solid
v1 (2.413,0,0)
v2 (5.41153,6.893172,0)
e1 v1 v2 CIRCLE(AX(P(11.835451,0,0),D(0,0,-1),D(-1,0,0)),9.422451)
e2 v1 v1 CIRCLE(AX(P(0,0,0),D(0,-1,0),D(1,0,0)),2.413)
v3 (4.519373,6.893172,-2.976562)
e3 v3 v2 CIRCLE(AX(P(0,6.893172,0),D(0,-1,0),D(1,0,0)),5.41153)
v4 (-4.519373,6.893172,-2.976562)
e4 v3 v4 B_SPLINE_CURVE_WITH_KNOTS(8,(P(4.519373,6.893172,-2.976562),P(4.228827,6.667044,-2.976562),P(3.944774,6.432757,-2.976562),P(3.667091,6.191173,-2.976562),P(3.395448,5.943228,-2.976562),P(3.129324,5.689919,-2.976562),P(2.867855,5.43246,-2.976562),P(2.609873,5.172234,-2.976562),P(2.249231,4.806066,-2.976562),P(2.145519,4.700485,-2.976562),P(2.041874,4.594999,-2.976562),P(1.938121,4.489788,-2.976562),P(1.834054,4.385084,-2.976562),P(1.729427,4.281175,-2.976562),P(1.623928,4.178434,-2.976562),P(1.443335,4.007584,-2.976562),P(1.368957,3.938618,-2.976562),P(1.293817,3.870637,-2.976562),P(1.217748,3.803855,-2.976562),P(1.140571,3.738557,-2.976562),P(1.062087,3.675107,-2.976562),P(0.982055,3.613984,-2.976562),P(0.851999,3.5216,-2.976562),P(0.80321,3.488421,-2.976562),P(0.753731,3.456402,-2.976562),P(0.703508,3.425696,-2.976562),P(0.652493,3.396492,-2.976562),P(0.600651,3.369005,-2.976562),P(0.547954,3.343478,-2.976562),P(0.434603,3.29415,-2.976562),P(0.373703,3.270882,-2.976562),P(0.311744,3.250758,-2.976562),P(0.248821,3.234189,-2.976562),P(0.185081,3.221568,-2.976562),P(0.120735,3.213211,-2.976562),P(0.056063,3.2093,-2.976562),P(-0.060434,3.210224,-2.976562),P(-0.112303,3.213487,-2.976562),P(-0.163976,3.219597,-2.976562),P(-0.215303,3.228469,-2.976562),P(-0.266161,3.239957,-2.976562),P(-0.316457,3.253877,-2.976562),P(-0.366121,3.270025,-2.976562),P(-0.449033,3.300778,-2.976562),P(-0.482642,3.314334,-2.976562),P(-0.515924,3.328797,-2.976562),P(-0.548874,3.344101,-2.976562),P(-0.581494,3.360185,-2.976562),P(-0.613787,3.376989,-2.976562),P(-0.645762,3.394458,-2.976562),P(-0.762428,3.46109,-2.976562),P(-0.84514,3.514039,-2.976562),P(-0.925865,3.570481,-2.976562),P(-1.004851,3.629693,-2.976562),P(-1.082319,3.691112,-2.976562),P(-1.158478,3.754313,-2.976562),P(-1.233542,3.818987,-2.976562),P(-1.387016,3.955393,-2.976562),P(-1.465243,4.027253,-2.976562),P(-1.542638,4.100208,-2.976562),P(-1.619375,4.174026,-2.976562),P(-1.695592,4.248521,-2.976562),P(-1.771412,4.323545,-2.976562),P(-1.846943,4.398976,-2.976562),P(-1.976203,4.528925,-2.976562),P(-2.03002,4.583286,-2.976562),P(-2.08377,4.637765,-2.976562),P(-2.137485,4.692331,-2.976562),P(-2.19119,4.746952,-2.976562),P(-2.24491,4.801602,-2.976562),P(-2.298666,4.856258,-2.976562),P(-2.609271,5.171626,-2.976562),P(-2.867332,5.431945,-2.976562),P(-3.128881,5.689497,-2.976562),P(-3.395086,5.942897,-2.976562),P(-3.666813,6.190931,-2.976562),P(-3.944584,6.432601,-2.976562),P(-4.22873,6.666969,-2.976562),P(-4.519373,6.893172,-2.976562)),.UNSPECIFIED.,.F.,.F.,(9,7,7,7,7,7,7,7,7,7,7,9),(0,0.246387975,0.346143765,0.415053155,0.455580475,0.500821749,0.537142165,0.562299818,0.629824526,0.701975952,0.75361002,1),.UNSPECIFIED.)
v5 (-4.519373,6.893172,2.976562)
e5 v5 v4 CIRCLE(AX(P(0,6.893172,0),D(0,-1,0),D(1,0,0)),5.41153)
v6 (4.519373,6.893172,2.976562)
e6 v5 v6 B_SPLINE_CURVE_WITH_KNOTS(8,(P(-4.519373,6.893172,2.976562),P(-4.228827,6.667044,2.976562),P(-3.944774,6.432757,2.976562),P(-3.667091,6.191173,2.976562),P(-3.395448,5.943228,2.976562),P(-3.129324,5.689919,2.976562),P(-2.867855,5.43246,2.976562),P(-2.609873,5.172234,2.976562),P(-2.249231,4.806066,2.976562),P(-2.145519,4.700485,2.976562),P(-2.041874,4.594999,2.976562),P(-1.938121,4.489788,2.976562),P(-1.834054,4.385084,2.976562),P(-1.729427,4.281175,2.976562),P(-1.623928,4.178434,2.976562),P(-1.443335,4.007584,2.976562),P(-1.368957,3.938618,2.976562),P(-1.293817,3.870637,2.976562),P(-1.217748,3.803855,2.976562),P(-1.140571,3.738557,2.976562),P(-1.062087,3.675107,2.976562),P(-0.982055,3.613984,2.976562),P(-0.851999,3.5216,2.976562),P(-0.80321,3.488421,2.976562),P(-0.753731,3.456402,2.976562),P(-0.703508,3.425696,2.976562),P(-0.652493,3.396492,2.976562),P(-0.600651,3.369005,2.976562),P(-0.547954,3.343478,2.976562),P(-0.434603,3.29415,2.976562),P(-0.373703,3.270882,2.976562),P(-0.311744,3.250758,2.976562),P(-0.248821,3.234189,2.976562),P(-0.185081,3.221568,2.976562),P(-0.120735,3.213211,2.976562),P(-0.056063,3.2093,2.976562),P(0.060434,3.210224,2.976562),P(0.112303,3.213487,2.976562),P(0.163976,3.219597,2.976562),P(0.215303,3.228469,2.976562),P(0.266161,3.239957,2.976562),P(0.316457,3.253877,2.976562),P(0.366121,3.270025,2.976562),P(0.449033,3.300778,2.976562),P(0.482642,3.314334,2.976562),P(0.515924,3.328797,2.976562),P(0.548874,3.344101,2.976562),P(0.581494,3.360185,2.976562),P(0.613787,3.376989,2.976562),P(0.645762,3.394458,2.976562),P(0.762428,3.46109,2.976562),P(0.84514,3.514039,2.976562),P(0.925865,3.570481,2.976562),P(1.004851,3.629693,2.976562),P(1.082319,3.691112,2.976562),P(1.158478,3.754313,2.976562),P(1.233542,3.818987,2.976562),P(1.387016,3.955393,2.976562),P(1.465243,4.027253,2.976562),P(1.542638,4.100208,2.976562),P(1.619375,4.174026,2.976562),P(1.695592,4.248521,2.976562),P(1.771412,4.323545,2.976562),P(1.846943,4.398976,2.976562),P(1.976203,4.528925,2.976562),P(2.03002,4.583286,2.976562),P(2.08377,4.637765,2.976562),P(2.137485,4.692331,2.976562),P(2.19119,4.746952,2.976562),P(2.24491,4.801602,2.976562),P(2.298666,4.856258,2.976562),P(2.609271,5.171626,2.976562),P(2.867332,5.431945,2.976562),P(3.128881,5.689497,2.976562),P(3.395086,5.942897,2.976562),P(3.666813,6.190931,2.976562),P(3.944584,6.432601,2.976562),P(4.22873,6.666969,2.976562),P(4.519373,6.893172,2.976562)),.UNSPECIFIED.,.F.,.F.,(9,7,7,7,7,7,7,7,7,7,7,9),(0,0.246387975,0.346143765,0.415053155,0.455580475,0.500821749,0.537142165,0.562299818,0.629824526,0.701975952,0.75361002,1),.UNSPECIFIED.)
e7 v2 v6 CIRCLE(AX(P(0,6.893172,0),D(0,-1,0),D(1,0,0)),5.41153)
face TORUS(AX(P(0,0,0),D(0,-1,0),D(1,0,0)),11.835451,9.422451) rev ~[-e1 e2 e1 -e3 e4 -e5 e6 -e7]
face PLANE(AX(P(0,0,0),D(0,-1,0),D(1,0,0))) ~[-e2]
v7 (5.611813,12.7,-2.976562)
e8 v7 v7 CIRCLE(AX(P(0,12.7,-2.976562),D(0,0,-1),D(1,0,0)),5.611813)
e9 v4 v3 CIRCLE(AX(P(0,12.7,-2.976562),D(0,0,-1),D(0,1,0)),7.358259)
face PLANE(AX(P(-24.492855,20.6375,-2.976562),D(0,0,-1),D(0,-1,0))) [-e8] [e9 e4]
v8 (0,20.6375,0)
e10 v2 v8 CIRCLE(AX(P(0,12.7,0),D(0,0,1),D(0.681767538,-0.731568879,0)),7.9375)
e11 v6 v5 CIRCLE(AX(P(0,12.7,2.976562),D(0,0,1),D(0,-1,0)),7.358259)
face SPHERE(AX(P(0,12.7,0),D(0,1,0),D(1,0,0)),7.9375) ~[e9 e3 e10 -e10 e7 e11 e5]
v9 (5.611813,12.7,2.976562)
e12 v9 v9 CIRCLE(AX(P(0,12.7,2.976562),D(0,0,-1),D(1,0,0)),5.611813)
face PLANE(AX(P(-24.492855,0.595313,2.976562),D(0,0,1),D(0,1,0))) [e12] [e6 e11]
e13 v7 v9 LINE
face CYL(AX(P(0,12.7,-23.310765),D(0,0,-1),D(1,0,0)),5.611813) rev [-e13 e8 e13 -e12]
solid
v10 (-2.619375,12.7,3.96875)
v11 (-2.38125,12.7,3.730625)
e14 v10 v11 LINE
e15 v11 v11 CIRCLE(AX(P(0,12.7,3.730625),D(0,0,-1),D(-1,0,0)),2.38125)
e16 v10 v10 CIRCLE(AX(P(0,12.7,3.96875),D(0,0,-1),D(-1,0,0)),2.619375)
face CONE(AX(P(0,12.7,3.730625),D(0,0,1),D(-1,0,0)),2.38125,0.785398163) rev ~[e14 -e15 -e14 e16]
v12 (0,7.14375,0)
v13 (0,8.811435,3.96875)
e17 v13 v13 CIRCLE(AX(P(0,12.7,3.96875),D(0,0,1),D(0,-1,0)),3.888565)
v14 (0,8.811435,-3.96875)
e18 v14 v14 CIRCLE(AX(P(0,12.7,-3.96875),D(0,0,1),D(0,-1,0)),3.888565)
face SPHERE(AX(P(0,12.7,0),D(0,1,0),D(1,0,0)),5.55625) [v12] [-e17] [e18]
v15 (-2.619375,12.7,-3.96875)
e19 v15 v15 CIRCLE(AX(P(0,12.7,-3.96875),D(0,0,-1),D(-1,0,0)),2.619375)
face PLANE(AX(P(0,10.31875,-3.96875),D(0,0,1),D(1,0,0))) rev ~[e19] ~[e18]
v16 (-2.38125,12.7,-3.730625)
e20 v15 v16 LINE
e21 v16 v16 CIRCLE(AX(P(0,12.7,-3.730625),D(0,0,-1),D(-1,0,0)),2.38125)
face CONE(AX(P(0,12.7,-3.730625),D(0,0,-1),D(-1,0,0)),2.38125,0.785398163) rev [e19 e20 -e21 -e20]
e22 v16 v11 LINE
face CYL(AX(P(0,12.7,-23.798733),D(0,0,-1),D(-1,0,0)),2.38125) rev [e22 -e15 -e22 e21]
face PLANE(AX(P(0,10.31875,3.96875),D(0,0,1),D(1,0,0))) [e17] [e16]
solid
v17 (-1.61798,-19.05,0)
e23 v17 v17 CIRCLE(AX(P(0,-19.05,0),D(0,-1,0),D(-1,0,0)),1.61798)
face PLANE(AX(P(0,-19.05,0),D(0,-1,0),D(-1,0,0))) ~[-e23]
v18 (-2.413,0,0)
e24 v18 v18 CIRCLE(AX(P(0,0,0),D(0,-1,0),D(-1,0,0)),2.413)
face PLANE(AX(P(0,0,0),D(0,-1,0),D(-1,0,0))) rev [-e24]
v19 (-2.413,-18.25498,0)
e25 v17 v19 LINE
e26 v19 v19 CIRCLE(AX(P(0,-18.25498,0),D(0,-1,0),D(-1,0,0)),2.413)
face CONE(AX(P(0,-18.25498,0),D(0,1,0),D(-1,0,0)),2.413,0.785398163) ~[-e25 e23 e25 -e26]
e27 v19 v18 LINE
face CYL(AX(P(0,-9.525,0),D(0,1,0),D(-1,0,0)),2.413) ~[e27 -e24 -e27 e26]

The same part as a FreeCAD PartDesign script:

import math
import FreeCAD as App
import Part
import Sketcher
from FreeCAD import Vector
Q = App.Units.Quantity


def edges_at(feature, points):
    """Names of the edges that pass closest to the given points."""
    edges = feature.Shape.Edges
    near = lambda p: min(range(len(edges)), key=lambda i: edges[i].distToShape(Part.Vertex(*p))[0])
    return sorted({f"Edge{near(p) + 1}" for p in points})


def add_polygon(sketch, points):
    """Adds a closed chain of lines whose ends are joined by coincident constraints."""
    first, n = sketch.GeometryCount, len(points)
    for a, b in zip(points, points[1:] + points[:1]):
        sketch.addGeometry(Part.LineSegment(App.Vector(*a, 0), App.Vector(*b, 0)), False)
    for i in range(n):
        sketch.addConstraint(Sketcher.Constraint("Coincident", first + i, 2, first + (i + 1) % n, 1))

doc = App.newDocument("Part")
body = doc.addObject("PartDesign::Body", "Body")

sketch1 = doc.addObject("Sketcher::SketchObject", "Sketch")
body.addObject(sketch1)
sketch1.AttachmentSupport = (doc.XY_Plane, [""])
sketch1.MapMode = "FlatFace"
add_polygon(sketch1, [(0, 0), (0, -19.05), (2.413, -19.05), (2.413, 0)])
sketch1.addConstraint(Sketcher.Constraint("Vertical", 0))
sketch1.addConstraint(Sketcher.Constraint("Horizontal", 1))
sketch1.addConstraint(Sketcher.Constraint("Vertical", 2))
sketch1.addConstraint(Sketcher.Constraint("Horizontal", 3))
sketch1.addConstraint(Sketcher.Constraint("Coincident", 3, 2, -1, 1))
sketch1.addConstraint(Sketcher.Constraint("DistanceY", 0, 2, 0, 1, Q("0.75 in")))
sketch1.addConstraint(Sketcher.Constraint("DistanceX", 1, 1, 1, 2, Q("0.095 in")))
revolution = doc.addObject("PartDesign::Revolution", "Revolution")
body.addObject(revolution)
revolution.Profile = sketch1
revolution.ReferenceAxis = (sketch1, ["V_Axis"])
revolution.Angle = 360
doc.recompute()

chamfer = doc.addObject("PartDesign::Chamfer", "Chamfer")
body.addObject(chamfer)
chamfer.Base = (revolution, edges_at(revolution, [(2.413, -19.05, 0)]))
chamfer.Size = Q("0.0313 in")
body2 = doc.addObject("PartDesign::Body", "Body001")

sketch2 = doc.addObject("Sketcher::SketchObject", "Sketch001")
body2.addObject(sketch2)
sketch2.AttachmentSupport = (doc.getObject("XY_Plane001"), [""])
sketch2.MapMode = "FlatFace"
sketch2.addGeometry(Part.LineSegment(Vector(0, 20.6375, 0), Vector(0, 0, 0)), False)
sketch2.addGeometry(Part.LineSegment(Vector(0, 0, 0), Vector(2.413, 0, 0)), False)
sketch2.addGeometry(Part.ArcOfCircle(Part.Circle(Vector(11.835451, 0, 0), Vector(0, 0, 1), 9.422451), math.radians(132.98192), math.radians(180)), False)
sketch2.addGeometry(Part.ArcOfCircle(Part.Circle(Vector(0, 12.7, 0), Vector(0, 0, 1), 7.9375), math.radians(-47.01808), math.radians(90)), False)
sketch2.addConstraint(Sketcher.Constraint("Coincident", 0, 2, 1, 1))
sketch2.addConstraint(Sketcher.Constraint("Coincident", 1, 2, 2, 2))
sketch2.addConstraint(Sketcher.Constraint("Tangent", 2, 1, 3, 1))
sketch2.addConstraint(Sketcher.Constraint("Coincident", 3, 2, 0, 1))
sketch2.addConstraint(Sketcher.Constraint("Vertical", 0))
sketch2.addConstraint(Sketcher.Constraint("Horizontal", 1))
sketch2.addConstraint(Sketcher.Constraint("Coincident", 0, 2, -1, 1))
sketch2.addConstraint(Sketcher.Constraint("PointOnObject", 2, 3, -1))
sketch2.addConstraint(Sketcher.Constraint("PointOnObject", 3, 3, -2))
sketch2.addConstraint(Sketcher.Constraint("Radius", 3, Q("0.3125 in")))
sketch2.addConstraint(Sketcher.Constraint("DistanceY", -1, 1, 3, 3, Q("0.5 in")))
sketch2.addConstraint(Sketcher.Constraint("DistanceX", 1, 1, 1, 2, Q("0.095 in")))
revolution2 = doc.addObject("PartDesign::Revolution", "Revolution001")
body2.addObject(revolution2)
revolution2.Profile = sketch2
revolution2.ReferenceAxis = (sketch2, ["V_Axis"])
revolution2.Angle = 360

sketch3 = doc.addObject("Sketcher::SketchObject", "Sketch002")
body2.addObject(sketch3)
sketch3.AttachmentSupport = (doc.getObject("YZ_Plane001"), [""])
sketch3.MapMode = "FlatFace"
add_polygon(sketch3, [(20.6375, -2.976562), (0.595313, -2.976562), (0, -2.413), (0, -7.9375), (20.6375, -7.9375)])
add_polygon(sketch3, [(0, 7.9375), (0, 2.413), (0.595313, 2.976562), (20.6375, 2.976562), (20.6375, 7.9375)])
sketch3.addConstraint(Sketcher.Constraint("Horizontal", 0))
sketch3.addConstraint(Sketcher.Constraint("Vertical", 2))
sketch3.addConstraint(Sketcher.Constraint("Horizontal", 3))
sketch3.addConstraint(Sketcher.Constraint("Vertical", 4))
sketch3.addConstraint(Sketcher.Constraint("Vertical", 5))
sketch3.addConstraint(Sketcher.Constraint("Horizontal", 7))
sketch3.addConstraint(Sketcher.Constraint("Vertical", 8))
sketch3.addConstraint(Sketcher.Constraint("Horizontal", 9))
sketch3.addConstraint(Sketcher.Constraint("Symmetric", 1, 2, 5, 2, -1, 1))
sketch3.addConstraint(Sketcher.Constraint("Symmetric", 0, 2, 6, 2, -1))
sketch3.addConstraint(Sketcher.Constraint("Symmetric", 3, 2, 8, 2, -1))
sketch3.addConstraint(Sketcher.Constraint("PointOnObject", 1, 2, -2))
sketch3.addConstraint(Sketcher.Constraint("DistanceX", 3, 1, 3, 2, Q("0.8125 in")))
sketch3.addConstraint(Sketcher.Constraint("DistanceY", 1, 2, 5, 2, Q("0.19 in")))
sketch3.addConstraint(Sketcher.Constraint("DistanceY", 2, 2, 2, 1, Q("0.2175 in")))
sketch3.addConstraint(Sketcher.Constraint("DistanceY", 0, 2, 6, 2, Q("0.234375 in")))
sketch3.addConstraint(Sketcher.Constraint("DistanceX", 0, 2, 0, 1, Q("20.042188 mm")))
pocket1 = doc.addObject("PartDesign::Pocket", "Pocket")
body2.addObject(pocket1)
pocket1.Profile = sketch3
pocket1.Type = "ThroughAll"
pocket1.Midplane = True

sketch4 = doc.addObject("Sketcher::SketchObject", "Sketch003")
body2.addObject(sketch4)
sketch4.AttachmentSupport = (doc.getObject("XY_Plane001"), [""])
sketch4.MapMode = "FlatFace"
sketch4.addGeometry(Part.Circle(Vector(0, 12.7, 0), Vector(0, 0, 1), 5.611813), False)
sketch4.addConstraint(Sketcher.Constraint("PointOnObject", 0, 3, -2))
sketch4.addConstraint(Sketcher.Constraint("DistanceY", -1, 1, 0, 3, Q("0.5 in")))
sketch4.addConstraint(Sketcher.Constraint("Diameter", 0, Q("11.223625 mm")))
pocket2 = doc.addObject("PartDesign::Pocket", "Pocket001")
body2.addObject(pocket2)
pocket2.Profile = sketch4
pocket2.Type = "ThroughAll"
pocket2.Midplane = True
body3 = doc.addObject("PartDesign::Body", "Body002")

sketch5 = doc.addObject("Sketcher::SketchObject", "Sketch004")
body3.addObject(sketch5)
sketch5.AttachmentSupport = (doc.getObject("XY_Plane002"), [""])
sketch5.MapMode = "FlatFace"
sketch5.addGeometry(Part.LineSegment(Vector(0, 18.25625, 0), Vector(0, 7.14375, 0)), False)
sketch5.addGeometry(Part.ArcOfCircle(Part.Circle(Vector(0, 12.7, 0), Vector(0, 0, 1), 5.55625), math.radians(-90), math.radians(90)), False)
sketch5.addConstraint(Sketcher.Constraint("Coincident", 0, 1, 1, 2))
sketch5.addConstraint(Sketcher.Constraint("Coincident", 1, 1, 0, 2))
sketch5.addConstraint(Sketcher.Constraint("Vertical", 0))
sketch5.addConstraint(Sketcher.Constraint("PointOnObject", 1, 3, -2))
sketch5.addConstraint(Sketcher.Constraint("PointOnObject", 0, 1, -2))
sketch5.addConstraint(Sketcher.Constraint("Radius", 1, Q("0.21875 in")))
sketch5.addConstraint(Sketcher.Constraint("DistanceY", -1, 1, 1, 3, Q("0.5 in")))
revolution3 = doc.addObject("PartDesign::Revolution", "Revolution002")
body3.addObject(revolution3)
revolution3.Profile = sketch5
revolution3.ReferenceAxis = (sketch5, ["V_Axis"])
revolution3.Angle = 360

sketch6 = doc.addObject("Sketcher::SketchObject", "Sketch005")
body3.addObject(sketch6)
sketch6.AttachmentSupport = (doc.getObject("XY_Plane002"), [""])
sketch6.MapMode = "FlatFace"
sketch6.addGeometry(Part.Circle(Vector(0, 12.7, 0), Vector(0, 0, 1), 2.38125), False)
sketch6.addConstraint(Sketcher.Constraint("PointOnObject", 0, 3, -2))
sketch6.addConstraint(Sketcher.Constraint("Diameter", 0, Q("0.1875 in")))
sketch6.addConstraint(Sketcher.Constraint("DistanceY", -1, 1, 0, 3, Q("0.5 in")))
pocket3 = doc.addObject("PartDesign::Pocket", "Pocket002")
body3.addObject(pocket3)
pocket3.Profile = sketch6
pocket3.Type = "ThroughAll"
pocket3.Midplane = True

sketch7 = doc.addObject("Sketcher::SketchObject", "Sketch006")
body3.addObject(sketch7)
sketch7.AttachmentSupport = (doc.getObject("XY_Plane002"), [""])
sketch7.MapMode = "FlatFace"
sketch7.AttachmentOffset = App.Placement(Vector(0, 0, -0.15625 * 25.4), App.Rotation())
add_polygon(sketch7, [(-7.9375, 20.6375), (-7.9375, 0), (7.9375, 0), (7.9375, 20.6375)])
sketch7.addConstraint(Sketcher.Constraint("Vertical", 0))
sketch7.addConstraint(Sketcher.Constraint("Horizontal", 1))
sketch7.addConstraint(Sketcher.Constraint("Vertical", 2))
sketch7.addConstraint(Sketcher.Constraint("Horizontal", 3))
sketch7.addConstraint(Sketcher.Constraint("Symmetric", 0, 2, 1, 2, -1, 1))
sketch7.addConstraint(Sketcher.Constraint("DistanceX", 1, 1, 1, 2, Q("0.625 in")))
sketch7.addConstraint(Sketcher.Constraint("DistanceY", 0, 2, 0, 1, Q("0.8125 in")))
pocket4 = doc.addObject("PartDesign::Pocket", "Pocket003")
body3.addObject(pocket4)
pocket4.Profile = sketch7
pocket4.Type = "ThroughAll"

sketch8 = doc.addObject("Sketcher::SketchObject", "Sketch007")
body3.addObject(sketch8)
sketch8.AttachmentSupport = (doc.getObject("XY_Plane002"), [""])
sketch8.MapMode = "FlatFace"
sketch8.AttachmentOffset = App.Placement(Vector(0, 0, 0.15625 * 25.4), App.Rotation())
add_polygon(sketch8, [(-7.9375, 20.6375), (-7.9375, 0), (7.9375, 0), (7.9375, 20.6375)])
sketch8.addConstraint(Sketcher.Constraint("Vertical", 0))
sketch8.addConstraint(Sketcher.Constraint("Horizontal", 1))
sketch8.addConstraint(Sketcher.Constraint("Vertical", 2))
sketch8.addConstraint(Sketcher.Constraint("Horizontal", 3))
sketch8.addConstraint(Sketcher.Constraint("Symmetric", 0, 2, 1, 2, -1, 1))
sketch8.addConstraint(Sketcher.Constraint("DistanceX", 1, 1, 1, 2, Q("0.625 in")))
sketch8.addConstraint(Sketcher.Constraint("DistanceY", 0, 2, 0, 1, Q("0.8125 in")))
pocket5 = doc.addObject("PartDesign::Pocket", "Pocket004")
body3.addObject(pocket5)
pocket5.Profile = sketch8
pocket5.Type = "ThroughAll"
pocket5.Reversed = True
doc.recompute()

chamfer2 = doc.addObject("PartDesign::Chamfer", "Chamfer001")
body3.addObject(chamfer2)
chamfer2.Base = (pocket5, edges_at(pocket5, [(2.381, 12.7, -3.969), (2.381, 12.7, 3.969)]))
chamfer2.Size = 0.238125

doc.recompute()
